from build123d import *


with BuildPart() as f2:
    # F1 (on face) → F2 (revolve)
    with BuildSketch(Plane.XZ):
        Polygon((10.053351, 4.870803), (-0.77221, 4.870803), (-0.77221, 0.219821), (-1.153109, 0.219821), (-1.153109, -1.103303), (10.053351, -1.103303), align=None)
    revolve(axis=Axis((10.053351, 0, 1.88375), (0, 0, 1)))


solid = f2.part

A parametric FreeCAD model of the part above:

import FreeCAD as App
import Part
import Sketcher

V = App.Vector
Q = App.Units.Quantity

doc = App.newDocument("Part")
body = doc.addObject("PartDesign::Body", "Body")

sketch1 = body.newObject("Sketcher::SketchObject", "Sketch")
sketch1.AttachmentSupport = (doc.getObject("XZ_Plane"), [""])
sketch1.MapMode = "FlatFace"
sketch1.addGeometry([
    Part.LineSegment(V(10.05, 4.87, 0), V(-0.77, 4.87, 0)),
    Part.LineSegment(V(-0.77, 4.87, 0), V(-0.77, 0.22, 0)),
    Part.LineSegment(V(-0.77, 0.22, 0), V(-1.15, 0.22, 0)),
    Part.LineSegment(V(-1.15, 0.22, 0), V(-1.15, -1.1, 0)),
    Part.LineSegment(V(-1.15, -1.1, 0), V(10.05, -1.1, 0)),
    Part.LineSegment(V(10.05, -1.1, 0), V(10.05, 4.87, 0)),
], False)
sketch1.addGeometry(Part.LineSegment(V(10.05, -1.1, 0), V(10.05, 4.87, 0)), True)
sketch1.addConstraint([
    Sketcher.Constraint("Coincident", 0, 2, 1, 1),
    Sketcher.Constraint("Coincident", 1, 2, 2, 1),
    Sketcher.Constraint("Coincident", 2, 2, 3, 1),
    Sketcher.Constraint("Coincident", 3, 2, 4, 1),
    Sketcher.Constraint("Coincident", 4, 2, 5, 1),
    Sketcher.Constraint("Coincident", 5, 2, 0, 1),
    Sketcher.Constraint("Horizontal", 0),
    Sketcher.Constraint("Vertical", 1),
    Sketcher.Constraint("Horizontal", 2),
    Sketcher.Constraint("Vertical", 3),
    Sketcher.Constraint("Horizontal", 4),
    Sketcher.Constraint("Vertical", 5),
    Sketcher.Constraint("Vertical", 6),
    Sketcher.Constraint("Coincident", 6, 1, 4, 2),
    Sketcher.Constraint("Horizontal", 0, 2, 6, 2),
    Sketcher.Constraint("DistanceX", 2, 2, 2, 1, Q("0.380899 mm")),
    Sketcher.Constraint("DistanceX", 0, 2, 0, 1, Q("10.825561 mm")),
    Sketcher.Constraint("DistanceY", 1, 2, 1, 1, Q("4.650982 mm")),
    Sketcher.Constraint("DistanceY", 3, 2, 3, 1, Q("1.323124 mm")),
    Sketcher.Constraint("DistanceX", 0, 2, -1, 1, Q("0.77221 mm")),
    Sketcher.Constraint("DistanceY", -1, 1, 1, 2, Q("0.219821 mm")),
])
revolution = body.newObject("PartDesign::Revolution", "Revolution")
revolution.Profile = sketch1
revolution.ReferenceAxis = (sketch1, ["Axis0"])
revolution.Angle = 360

doc.recompute()
